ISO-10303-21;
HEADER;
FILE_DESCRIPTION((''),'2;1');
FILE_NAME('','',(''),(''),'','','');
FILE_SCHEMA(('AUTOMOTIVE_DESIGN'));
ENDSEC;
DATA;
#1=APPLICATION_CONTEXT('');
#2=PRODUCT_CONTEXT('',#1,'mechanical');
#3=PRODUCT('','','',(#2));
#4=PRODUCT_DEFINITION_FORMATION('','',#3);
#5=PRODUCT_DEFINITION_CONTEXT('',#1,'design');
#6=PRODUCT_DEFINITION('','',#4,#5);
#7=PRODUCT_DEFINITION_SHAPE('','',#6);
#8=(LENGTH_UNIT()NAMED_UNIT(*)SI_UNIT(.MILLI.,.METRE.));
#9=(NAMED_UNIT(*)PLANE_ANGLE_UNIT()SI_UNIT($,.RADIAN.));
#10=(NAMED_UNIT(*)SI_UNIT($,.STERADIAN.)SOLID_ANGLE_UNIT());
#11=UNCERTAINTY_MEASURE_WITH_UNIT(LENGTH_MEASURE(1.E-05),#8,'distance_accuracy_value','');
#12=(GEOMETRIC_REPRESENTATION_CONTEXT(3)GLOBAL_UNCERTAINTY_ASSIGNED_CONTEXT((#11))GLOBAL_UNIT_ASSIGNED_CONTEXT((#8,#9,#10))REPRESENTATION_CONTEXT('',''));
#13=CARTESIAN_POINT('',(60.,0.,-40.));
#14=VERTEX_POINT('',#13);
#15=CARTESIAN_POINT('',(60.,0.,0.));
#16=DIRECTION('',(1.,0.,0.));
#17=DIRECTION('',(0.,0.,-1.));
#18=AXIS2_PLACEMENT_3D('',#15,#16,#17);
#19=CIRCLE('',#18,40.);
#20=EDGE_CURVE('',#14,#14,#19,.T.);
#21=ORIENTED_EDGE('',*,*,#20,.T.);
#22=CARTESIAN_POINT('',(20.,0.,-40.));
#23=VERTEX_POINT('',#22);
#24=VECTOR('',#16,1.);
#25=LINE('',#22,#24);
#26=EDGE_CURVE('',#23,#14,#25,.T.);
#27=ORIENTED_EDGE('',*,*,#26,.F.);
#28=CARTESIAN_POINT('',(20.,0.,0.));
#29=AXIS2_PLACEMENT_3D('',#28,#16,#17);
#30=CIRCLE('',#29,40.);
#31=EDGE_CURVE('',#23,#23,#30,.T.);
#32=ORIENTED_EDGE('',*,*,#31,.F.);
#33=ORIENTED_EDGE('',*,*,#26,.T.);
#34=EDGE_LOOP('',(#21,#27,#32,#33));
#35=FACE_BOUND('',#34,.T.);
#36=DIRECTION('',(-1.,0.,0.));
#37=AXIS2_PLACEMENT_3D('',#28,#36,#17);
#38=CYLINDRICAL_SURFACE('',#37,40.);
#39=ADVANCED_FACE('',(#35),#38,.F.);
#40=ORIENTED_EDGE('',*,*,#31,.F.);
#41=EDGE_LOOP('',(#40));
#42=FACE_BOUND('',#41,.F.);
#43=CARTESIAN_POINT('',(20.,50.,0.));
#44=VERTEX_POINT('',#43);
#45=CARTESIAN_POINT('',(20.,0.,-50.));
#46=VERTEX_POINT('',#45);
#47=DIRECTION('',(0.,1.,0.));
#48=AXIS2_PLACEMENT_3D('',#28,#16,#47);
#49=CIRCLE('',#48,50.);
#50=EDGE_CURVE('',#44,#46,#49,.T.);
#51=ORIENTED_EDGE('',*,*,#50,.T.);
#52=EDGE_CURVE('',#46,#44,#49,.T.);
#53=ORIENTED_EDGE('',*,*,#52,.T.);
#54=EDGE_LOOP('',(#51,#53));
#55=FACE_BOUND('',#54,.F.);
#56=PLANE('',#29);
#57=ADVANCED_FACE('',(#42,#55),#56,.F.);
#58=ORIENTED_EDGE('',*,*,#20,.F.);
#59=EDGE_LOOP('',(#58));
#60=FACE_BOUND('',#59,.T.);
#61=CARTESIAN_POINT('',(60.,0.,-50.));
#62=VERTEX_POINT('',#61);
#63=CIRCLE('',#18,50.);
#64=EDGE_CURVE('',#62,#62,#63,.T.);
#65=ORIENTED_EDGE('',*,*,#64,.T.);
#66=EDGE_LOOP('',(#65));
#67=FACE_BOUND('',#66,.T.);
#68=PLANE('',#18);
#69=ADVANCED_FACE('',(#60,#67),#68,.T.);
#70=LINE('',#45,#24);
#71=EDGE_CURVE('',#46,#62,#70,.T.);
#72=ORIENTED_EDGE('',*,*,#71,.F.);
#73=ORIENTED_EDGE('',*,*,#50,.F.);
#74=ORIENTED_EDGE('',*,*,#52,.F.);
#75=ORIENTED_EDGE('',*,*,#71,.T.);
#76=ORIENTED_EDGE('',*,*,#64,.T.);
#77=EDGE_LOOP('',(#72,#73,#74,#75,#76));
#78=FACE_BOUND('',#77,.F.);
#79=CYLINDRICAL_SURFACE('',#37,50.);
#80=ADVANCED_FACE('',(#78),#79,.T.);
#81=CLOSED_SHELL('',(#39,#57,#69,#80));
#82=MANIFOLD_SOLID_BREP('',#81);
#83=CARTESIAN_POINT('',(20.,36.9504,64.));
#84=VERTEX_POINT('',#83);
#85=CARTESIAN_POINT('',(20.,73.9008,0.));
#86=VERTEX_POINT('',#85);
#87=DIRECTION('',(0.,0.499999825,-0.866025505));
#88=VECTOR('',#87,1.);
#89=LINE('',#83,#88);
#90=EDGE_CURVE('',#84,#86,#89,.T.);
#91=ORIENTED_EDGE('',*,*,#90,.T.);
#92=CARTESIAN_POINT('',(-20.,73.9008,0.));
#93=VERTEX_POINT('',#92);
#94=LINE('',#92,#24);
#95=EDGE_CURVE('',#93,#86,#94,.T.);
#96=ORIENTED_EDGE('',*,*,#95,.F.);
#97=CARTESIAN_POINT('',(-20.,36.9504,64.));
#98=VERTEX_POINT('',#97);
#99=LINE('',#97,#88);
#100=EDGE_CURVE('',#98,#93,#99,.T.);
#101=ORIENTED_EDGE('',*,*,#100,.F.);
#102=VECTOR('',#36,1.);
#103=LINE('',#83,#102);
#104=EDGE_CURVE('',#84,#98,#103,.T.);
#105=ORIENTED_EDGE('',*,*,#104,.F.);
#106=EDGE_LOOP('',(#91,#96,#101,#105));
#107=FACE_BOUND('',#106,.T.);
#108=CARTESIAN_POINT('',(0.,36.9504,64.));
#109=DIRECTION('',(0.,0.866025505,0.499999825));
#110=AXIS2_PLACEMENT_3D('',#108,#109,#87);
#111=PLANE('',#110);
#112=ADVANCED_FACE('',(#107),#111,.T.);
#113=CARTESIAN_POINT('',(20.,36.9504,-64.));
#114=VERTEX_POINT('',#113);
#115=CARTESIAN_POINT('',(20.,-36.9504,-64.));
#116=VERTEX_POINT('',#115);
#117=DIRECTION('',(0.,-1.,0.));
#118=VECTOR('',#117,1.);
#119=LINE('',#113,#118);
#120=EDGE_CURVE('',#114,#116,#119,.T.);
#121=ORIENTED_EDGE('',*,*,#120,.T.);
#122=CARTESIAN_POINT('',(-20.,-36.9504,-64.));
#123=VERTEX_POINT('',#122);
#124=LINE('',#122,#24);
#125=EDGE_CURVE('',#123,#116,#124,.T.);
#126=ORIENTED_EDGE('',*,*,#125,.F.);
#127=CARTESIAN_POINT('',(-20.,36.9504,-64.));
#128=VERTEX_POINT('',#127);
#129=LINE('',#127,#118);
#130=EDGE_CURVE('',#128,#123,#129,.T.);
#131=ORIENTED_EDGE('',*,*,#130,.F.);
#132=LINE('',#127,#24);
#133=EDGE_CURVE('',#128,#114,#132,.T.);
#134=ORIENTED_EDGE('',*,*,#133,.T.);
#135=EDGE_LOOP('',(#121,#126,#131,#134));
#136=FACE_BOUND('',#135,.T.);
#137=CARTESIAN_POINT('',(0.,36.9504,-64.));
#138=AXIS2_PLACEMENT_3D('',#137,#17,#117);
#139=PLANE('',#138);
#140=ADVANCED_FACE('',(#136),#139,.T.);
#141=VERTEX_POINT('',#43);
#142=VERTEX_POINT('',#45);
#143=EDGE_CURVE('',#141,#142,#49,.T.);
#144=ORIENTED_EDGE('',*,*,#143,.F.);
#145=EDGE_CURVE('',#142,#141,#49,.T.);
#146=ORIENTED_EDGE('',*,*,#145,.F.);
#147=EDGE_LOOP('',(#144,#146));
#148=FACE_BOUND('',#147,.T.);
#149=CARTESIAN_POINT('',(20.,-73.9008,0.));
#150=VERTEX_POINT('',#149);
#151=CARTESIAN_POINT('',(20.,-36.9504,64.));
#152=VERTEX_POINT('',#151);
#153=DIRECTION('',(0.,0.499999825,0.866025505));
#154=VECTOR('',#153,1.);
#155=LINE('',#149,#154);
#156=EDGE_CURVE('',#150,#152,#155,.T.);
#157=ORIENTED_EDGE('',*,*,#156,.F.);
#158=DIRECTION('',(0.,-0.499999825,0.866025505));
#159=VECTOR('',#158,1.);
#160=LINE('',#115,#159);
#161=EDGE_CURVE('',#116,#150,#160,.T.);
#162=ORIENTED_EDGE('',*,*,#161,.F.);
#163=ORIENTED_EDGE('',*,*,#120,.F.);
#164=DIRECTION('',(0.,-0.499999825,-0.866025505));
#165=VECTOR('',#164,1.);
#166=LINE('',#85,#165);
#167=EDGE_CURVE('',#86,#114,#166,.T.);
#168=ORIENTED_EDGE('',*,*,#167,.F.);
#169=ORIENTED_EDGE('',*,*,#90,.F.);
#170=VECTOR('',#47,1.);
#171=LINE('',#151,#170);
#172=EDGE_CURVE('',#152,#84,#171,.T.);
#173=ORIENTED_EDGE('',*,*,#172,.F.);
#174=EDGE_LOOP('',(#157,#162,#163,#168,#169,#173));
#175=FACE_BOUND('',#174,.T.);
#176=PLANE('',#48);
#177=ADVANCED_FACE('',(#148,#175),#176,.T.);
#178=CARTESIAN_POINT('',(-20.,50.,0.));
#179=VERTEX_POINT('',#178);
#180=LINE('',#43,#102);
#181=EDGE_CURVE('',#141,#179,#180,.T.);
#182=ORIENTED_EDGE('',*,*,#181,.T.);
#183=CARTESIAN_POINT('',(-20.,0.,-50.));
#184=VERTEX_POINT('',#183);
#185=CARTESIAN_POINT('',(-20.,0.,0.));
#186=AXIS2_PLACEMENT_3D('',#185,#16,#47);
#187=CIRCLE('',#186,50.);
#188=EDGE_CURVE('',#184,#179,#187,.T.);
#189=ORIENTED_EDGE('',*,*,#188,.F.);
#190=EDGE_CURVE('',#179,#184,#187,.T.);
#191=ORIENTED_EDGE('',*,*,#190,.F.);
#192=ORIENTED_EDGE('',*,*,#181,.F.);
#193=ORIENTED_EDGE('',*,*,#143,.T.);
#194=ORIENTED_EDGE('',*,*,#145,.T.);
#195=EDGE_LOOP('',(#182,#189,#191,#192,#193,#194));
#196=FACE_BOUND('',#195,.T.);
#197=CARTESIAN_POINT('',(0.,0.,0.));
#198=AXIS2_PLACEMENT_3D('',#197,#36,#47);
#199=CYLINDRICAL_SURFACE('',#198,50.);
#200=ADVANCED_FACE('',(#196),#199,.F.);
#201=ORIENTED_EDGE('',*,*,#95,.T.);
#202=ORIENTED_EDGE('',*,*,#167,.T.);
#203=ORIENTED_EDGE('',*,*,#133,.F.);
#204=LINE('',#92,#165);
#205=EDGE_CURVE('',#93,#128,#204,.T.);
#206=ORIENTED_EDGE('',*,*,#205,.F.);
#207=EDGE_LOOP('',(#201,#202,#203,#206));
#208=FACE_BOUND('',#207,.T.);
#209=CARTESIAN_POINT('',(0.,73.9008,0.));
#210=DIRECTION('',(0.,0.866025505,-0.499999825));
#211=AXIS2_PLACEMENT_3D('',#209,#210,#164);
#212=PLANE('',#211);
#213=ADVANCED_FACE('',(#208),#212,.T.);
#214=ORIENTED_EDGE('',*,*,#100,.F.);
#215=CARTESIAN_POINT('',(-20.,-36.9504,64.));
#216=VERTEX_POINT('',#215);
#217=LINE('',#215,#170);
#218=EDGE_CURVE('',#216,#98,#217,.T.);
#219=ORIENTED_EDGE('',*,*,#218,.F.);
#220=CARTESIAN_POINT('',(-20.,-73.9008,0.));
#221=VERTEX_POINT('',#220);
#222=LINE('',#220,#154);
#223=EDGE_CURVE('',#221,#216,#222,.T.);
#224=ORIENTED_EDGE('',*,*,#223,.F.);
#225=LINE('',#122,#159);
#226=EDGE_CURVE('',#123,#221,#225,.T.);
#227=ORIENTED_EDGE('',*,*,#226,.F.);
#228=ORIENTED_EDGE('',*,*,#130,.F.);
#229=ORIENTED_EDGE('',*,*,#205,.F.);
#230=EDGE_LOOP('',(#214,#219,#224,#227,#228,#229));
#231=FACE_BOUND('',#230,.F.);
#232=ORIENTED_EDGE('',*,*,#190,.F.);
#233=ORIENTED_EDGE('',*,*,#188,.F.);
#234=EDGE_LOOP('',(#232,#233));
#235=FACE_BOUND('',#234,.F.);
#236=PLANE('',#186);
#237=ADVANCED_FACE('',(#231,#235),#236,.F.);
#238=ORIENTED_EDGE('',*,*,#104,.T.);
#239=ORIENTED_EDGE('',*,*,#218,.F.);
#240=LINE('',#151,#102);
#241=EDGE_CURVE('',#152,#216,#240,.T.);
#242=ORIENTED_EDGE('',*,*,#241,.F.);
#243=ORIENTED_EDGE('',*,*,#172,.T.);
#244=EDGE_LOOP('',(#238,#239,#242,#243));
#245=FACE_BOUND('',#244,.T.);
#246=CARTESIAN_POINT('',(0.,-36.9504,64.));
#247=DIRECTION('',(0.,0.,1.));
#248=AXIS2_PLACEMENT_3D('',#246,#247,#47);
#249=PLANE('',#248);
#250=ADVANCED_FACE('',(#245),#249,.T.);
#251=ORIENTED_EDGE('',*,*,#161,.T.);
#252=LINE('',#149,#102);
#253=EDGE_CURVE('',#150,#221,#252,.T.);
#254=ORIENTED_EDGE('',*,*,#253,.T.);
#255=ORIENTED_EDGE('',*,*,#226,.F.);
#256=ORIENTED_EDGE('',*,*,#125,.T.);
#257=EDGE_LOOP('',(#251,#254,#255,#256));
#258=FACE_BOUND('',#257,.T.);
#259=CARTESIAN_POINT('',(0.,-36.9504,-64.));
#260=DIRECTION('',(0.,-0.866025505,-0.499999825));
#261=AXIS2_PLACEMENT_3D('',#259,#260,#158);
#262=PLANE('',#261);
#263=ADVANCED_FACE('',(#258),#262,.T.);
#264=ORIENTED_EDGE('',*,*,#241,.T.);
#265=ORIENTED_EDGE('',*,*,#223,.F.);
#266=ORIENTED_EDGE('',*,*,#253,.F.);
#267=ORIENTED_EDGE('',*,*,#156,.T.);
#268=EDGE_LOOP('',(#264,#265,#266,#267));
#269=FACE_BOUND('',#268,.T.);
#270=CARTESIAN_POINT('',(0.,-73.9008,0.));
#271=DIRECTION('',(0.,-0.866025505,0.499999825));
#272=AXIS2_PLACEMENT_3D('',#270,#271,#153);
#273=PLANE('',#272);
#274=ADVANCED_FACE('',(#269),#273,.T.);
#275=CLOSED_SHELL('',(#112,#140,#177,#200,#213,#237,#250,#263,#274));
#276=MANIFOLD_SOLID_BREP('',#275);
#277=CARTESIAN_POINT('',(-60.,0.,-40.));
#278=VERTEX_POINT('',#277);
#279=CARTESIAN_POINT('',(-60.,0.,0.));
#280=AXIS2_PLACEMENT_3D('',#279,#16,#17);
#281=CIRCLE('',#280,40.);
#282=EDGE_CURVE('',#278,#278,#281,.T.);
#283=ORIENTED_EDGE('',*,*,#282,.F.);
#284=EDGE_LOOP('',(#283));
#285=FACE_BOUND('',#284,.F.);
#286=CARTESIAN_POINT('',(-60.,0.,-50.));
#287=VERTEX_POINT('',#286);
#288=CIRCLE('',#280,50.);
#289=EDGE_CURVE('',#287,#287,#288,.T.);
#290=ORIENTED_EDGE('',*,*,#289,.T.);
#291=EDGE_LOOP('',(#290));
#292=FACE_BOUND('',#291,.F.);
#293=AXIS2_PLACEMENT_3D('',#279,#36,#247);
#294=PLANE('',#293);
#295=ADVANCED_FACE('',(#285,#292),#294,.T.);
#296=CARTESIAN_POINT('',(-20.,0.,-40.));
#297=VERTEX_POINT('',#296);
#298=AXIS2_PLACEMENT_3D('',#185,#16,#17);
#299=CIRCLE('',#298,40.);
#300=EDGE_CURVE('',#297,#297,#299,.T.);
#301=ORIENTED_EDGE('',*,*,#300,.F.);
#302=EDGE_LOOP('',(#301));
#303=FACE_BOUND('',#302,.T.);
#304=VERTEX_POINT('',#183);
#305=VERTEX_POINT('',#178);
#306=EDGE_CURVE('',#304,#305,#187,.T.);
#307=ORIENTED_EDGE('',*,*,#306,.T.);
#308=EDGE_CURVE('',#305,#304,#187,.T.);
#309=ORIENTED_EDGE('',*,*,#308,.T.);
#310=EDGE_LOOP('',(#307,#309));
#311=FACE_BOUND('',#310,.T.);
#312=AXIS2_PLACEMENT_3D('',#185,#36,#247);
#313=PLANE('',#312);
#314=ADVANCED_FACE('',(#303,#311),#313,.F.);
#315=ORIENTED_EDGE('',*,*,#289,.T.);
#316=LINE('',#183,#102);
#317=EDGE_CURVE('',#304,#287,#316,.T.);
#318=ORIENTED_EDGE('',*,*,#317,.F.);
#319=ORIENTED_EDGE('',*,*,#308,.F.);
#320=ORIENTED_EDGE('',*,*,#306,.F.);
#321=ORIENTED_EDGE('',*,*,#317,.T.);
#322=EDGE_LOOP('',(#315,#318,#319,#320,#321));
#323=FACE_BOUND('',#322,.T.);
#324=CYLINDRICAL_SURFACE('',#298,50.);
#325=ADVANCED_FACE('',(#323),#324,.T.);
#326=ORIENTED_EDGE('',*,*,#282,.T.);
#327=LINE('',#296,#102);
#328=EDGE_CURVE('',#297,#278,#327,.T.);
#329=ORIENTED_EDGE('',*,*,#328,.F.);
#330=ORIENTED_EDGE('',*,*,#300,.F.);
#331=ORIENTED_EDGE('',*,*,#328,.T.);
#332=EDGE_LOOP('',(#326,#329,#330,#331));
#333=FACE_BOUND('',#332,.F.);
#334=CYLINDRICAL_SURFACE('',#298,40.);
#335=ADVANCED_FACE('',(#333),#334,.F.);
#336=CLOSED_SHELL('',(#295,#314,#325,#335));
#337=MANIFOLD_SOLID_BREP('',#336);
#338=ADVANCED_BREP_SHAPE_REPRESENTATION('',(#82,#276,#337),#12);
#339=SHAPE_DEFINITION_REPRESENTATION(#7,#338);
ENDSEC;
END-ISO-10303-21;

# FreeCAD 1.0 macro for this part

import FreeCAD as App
import Part
import Sketcher
from FreeCAD import Vector
Q = App.Units.Quantity

doc = App.newDocument("Part")
body = doc.addObject("PartDesign::Body", "Body")
body.AllowCompound = True

sketch1 = doc.addObject("Sketcher::SketchObject", "Sketch")
body.addObject(sketch1)
sketch1.AttachmentSupport = (doc.YZ_Plane, [""])
sketch1.MapMode = "FlatFace"
sketch1.addGeometry([
    Part.LineSegment(Vector(-73.9008, 0, 0), Vector(-36.9504, -64, 0)),
    Part.LineSegment(Vector(-36.9504, -64, 0), Vector(36.9504, -64, 0)),
    Part.LineSegment(Vector(36.9504, -64, 0), Vector(73.9008, 0, 0)),
    Part.LineSegment(Vector(73.9008, 0, 0), Vector(36.9504, 64, 0)),
    Part.LineSegment(Vector(36.9504, 64, 0), Vector(-36.9504, 64, 0)),
    Part.LineSegment(Vector(-36.9504, 64, 0), Vector(-73.9008, 0, 0)),
    Part.Circle(Vector(0, 0, 0), Vector(0, 0, 1), 50),
], False)
sketch1.addConstraint([
    Sketcher.Constraint("Coincident", 0, 2, 1, 1),
    Sketcher.Constraint("Coincident", 1, 2, 2, 1),
    Sketcher.Constraint("Coincident", 2, 2, 3, 1),
    Sketcher.Constraint("Coincident", 3, 2, 4, 1),
    Sketcher.Constraint("Coincident", 4, 2, 5, 1),
    Sketcher.Constraint("Coincident", 5, 2, 0, 1),
    Sketcher.Constraint("Horizontal", 1),
    Sketcher.Constraint("Horizontal", 4),
    Sketcher.Constraint("Coincident", 6, 3, -1, 1),
    Sketcher.Constraint("Symmetric", 0, 2, 3, 2, -1, 1),
    Sketcher.Constraint("Symmetric", 2, 2, 5, 2, -1, 1),
    Sketcher.Constraint("PointOnObject", 2, 2, -1),
    Sketcher.Constraint("Parallel", 2, 5),
    Sketcher.Constraint("Vertical", 1, 2, 3, 2),
    Sketcher.Constraint("Diameter", 6, Q("3.937 in")),
    Sketcher.Constraint("Angle", 0, Q("-60 deg")),
    Sketcher.Constraint("DistanceY", 0, 2, -1, 1, 64.0),
    Sketcher.Constraint("DistanceX", 1, 1, 1, 2, 73.9008),
])
pad1 = doc.addObject("PartDesign::Pad", "Pad")
body.addObject(pad1)
pad1.Profile = sketch1
pad1.Length = Q("1.5748031 in")
pad1.Midplane = True

sketch2 = doc.addObject("Sketcher::SketchObject", "Sketch001")
body.addObject(sketch2)
sketch2.AttachmentSupport = (doc.YZ_Plane, [""])
sketch2.MapMode = "FlatFace"
sketch2.AttachmentOffset = App.Placement(Vector(0, 0, 0.7874016 * 25.4), App.Rotation())
sketch2.addGeometry([
    Part.Circle(Vector(0, 0, 0), Vector(0, 0, 1), 50),
    Part.Circle(Vector(0, 0, 0), Vector(0, 0, 1), 40),
], False)
sketch2.addConstraint([
    Sketcher.Constraint("Coincident", 0, 3, -1, 1),
    Sketcher.Constraint("Coincident", 1, 3, -1, 1),
    Sketcher.Constraint("Diameter", 0, Q("3.937 in")),
    Sketcher.Constraint("Diameter", 1, Q("3.1496 in")),
])
pad2 = doc.addObject("PartDesign::Pad", "Pad001")
body.addObject(pad2)
pad2.Profile = sketch2
pad2.Length = Q("1.5748031 in")
doc.recompute()

mirrored = doc.addObject("PartDesign::Mirrored", "Mirrored")
body.addObject(mirrored)
mirrored.Originals = [pad2]
mirrored.MirrorPlane = (doc.YZ_Plane, [""])
body.Tip = mirrored

doc.recompute()
